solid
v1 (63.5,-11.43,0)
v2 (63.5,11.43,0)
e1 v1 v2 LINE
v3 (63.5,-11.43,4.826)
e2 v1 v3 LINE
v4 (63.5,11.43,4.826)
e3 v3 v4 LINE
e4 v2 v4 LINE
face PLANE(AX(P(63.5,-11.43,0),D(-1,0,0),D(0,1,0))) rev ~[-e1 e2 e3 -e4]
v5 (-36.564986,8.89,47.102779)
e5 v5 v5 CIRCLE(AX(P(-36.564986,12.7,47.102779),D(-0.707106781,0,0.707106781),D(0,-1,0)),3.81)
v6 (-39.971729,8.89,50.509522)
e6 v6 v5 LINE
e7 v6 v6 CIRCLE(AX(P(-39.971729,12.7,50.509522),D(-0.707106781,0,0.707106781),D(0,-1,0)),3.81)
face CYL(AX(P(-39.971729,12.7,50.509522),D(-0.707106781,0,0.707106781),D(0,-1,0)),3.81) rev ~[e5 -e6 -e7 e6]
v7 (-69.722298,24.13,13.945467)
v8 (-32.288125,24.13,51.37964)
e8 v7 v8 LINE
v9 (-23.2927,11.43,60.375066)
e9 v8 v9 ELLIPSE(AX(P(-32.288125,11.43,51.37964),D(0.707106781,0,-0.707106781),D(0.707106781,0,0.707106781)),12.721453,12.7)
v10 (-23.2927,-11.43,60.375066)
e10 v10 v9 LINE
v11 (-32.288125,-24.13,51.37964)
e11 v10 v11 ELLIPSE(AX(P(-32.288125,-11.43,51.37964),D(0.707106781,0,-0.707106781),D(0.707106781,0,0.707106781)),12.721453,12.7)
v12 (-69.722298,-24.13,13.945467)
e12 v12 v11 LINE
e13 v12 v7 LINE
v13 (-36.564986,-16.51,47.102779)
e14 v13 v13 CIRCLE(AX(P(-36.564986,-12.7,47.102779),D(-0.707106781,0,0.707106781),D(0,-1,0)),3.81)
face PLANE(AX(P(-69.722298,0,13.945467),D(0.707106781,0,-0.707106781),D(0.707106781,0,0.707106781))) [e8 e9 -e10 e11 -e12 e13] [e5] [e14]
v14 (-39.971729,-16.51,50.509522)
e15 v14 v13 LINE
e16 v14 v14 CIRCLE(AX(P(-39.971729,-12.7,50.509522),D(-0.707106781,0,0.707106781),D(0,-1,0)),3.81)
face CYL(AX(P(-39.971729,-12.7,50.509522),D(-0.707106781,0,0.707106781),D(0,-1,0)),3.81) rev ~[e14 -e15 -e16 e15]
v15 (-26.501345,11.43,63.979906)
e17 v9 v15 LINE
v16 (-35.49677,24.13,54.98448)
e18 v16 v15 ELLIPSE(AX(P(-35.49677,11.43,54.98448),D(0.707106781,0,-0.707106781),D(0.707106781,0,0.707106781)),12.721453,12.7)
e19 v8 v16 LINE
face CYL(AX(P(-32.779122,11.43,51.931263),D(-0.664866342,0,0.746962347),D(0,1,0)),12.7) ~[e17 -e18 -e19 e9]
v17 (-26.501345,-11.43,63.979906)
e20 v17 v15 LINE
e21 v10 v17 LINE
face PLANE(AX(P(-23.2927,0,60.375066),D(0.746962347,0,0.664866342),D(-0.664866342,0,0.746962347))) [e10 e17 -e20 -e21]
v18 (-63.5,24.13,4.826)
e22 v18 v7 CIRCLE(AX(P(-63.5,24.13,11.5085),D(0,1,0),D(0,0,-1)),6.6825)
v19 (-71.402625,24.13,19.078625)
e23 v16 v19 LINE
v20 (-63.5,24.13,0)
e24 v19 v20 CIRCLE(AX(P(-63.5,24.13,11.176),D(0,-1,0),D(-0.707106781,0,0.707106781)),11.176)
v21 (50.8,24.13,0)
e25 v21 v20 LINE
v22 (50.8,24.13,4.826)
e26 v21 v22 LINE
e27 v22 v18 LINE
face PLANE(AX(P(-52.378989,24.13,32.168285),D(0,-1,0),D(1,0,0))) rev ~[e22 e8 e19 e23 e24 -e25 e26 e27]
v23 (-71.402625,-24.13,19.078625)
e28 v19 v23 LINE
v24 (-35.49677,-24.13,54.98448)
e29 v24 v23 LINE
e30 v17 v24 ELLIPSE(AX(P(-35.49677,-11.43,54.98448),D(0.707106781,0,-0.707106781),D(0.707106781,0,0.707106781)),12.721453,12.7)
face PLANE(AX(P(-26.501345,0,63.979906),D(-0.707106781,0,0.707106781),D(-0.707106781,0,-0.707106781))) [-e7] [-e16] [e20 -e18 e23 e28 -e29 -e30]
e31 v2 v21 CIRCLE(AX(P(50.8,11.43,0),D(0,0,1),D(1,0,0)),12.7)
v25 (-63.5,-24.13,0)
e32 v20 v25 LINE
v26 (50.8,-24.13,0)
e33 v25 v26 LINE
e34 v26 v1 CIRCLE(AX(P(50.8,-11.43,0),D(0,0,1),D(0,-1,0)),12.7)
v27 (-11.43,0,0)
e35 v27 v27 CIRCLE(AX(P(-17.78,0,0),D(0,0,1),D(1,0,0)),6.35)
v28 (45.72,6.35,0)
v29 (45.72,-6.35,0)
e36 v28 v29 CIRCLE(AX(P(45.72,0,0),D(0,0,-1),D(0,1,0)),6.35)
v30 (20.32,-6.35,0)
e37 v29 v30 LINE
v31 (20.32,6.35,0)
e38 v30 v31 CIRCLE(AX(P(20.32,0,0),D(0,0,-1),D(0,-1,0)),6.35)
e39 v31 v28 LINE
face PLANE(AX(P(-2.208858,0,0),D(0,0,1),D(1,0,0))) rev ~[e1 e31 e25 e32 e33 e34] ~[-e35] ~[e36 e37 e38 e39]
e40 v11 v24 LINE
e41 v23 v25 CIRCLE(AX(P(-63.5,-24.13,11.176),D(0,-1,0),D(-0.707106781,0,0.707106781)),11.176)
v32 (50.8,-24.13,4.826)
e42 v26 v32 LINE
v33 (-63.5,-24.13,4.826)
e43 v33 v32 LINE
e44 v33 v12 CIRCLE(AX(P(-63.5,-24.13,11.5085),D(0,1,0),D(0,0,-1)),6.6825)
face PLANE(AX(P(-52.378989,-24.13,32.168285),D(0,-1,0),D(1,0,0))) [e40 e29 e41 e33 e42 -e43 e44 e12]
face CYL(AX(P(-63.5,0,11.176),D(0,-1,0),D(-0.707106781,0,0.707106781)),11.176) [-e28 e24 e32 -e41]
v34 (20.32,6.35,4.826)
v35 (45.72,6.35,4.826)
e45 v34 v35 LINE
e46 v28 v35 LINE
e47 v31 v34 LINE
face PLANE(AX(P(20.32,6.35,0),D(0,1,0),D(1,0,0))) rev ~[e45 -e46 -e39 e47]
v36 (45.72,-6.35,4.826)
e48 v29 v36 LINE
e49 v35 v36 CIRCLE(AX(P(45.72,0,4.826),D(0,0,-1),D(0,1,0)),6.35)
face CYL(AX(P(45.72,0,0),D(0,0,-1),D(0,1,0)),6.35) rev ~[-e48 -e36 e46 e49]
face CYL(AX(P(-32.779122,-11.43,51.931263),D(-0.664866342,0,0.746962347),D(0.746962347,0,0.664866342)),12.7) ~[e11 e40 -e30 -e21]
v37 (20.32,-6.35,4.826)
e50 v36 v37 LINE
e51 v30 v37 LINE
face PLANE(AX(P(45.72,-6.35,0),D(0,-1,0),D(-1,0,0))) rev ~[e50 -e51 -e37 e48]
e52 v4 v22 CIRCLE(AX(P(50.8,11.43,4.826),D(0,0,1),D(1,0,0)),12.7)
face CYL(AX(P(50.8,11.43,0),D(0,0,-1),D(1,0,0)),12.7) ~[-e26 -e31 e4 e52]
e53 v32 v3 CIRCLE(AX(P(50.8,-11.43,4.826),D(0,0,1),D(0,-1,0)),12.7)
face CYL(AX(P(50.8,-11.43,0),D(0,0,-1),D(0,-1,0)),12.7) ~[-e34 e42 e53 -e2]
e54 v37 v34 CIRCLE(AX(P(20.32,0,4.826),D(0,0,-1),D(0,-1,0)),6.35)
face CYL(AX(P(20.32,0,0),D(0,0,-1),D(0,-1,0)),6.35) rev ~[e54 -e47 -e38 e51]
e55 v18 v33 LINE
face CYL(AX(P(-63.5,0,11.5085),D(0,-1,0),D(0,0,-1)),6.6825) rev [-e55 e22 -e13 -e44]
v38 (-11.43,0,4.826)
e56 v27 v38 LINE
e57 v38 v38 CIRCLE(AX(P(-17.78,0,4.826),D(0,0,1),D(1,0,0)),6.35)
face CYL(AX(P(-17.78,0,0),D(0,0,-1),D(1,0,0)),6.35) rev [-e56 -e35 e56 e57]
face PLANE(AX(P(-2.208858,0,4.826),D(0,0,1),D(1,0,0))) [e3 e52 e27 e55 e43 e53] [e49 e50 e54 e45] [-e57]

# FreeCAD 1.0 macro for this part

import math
import FreeCAD as App
import Part
import Sketcher

V = App.Vector
Q = App.Units.Quantity


def edges_at(feature, points):
    """Names of the edges that pass closest to the given points."""
    edges = feature.Shape.Edges
    near = lambda p: min(range(len(edges)), key=lambda i: edges[i].distToShape(Part.Vertex(*p))[0])
    return sorted({f"Edge{near(p) + 1}" for p in points})

doc = App.newDocument("Part")
body = doc.addObject("PartDesign::Body", "Body")

sketch1 = doc.addObject("Sketcher::SketchObject", "Sketch")
body.addObject(sketch1)
sketch1.AttachmentSupport = (doc.XY_Plane, [""])
sketch1.MapMode = "FlatFace"
sketch1.addGeometry([
    Part.ArcOfCircle(Part.Circle(V(50.8, 11.43, 0), V(0, 0, 1), 12.7), math.radians(0), math.radians(90)),
    Part.LineSegment(V(50.8, 24.13, 0), V(-63.5, 24.13, 0)),
    Part.LineSegment(V(-63.5, 24.13, 0), V(-63.5, -24.13, 0)),
    Part.LineSegment(V(-63.5, -24.13, 0), V(50.8, -24.13, 0)),
    Part.ArcOfCircle(Part.Circle(V(50.8, -11.43, 0), V(0, 0, 1), 12.7), math.radians(-90), math.radians(0)),
    Part.LineSegment(V(63.5, -11.43, 0), V(63.5, 11.43, 0)),
    Part.Circle(V(-17.78, 0, 0), V(0, 0, 1), 6.35),
    Part.ArcOfCircle(Part.Circle(V(20.32, 0, 0), V(0, 0, 1), 6.35), math.radians(90), math.radians(270)),
    Part.LineSegment(V(20.32, 6.35, 0), V(45.72, 6.35, 0)),
    Part.ArcOfCircle(Part.Circle(V(45.72, 0, 0), V(0, 0, 1), 6.35), math.radians(-90), math.radians(90)),
    Part.LineSegment(V(45.72, -6.35, 0), V(20.32, -6.35, 0)),
], False)
sketch1.addConstraint([
    Sketcher.Constraint("Tangent", 0, 2, 1, 1),
    Sketcher.Constraint("Coincident", 1, 2, 2, 1),
    Sketcher.Constraint("Coincident", 2, 2, 3, 1),
    Sketcher.Constraint("Tangent", 3, 2, 4, 1),
    Sketcher.Constraint("Tangent", 4, 2, 5, 1),
    Sketcher.Constraint("Tangent", 5, 2, 0, 1),
    Sketcher.Constraint("Tangent", 7, 1, 8, 1),
    Sketcher.Constraint("Tangent", 8, 2, 9, 2),
    Sketcher.Constraint("Tangent", 9, 1, 10, 1),
    Sketcher.Constraint("Tangent", 10, 2, 7, 2),
    Sketcher.Constraint("Horizontal", 1),
    Sketcher.Constraint("Vertical", 2),
    Sketcher.Constraint("Horizontal", 3),
    Sketcher.Constraint("Vertical", 5),
    Sketcher.Constraint("Horizontal", 8),
    Sketcher.Constraint("Horizontal", 10),
    Sketcher.Constraint("Equal", 0, 4),
    Sketcher.Constraint("Equal", 6, 7),
    Sketcher.Constraint("PointOnObject", 6, 3, -1),
    Sketcher.Constraint("PointOnObject", 7, 3, -1),
    Sketcher.Constraint("Diameter", 6, Q("0.5 in")),
    Sketcher.Constraint("Radius", 0, Q("0.5 in")),
    Sketcher.Constraint("DistanceX", 8, 1, 8, 2, Q("1 in")),
    Sketcher.Constraint("DistanceX", 1, 2, 1, 1, Q("4.5 in")),
    Sketcher.Constraint("DistanceY", 2, 2, 2, 1, Q("1.9 in")),
    Sketcher.Constraint("DistanceX", -1, 1, 0, 3, Q("2 in")),
    Sketcher.Constraint("DistanceX", 6, 3, -1, 1, Q("0.7 in")),
    Sketcher.Constraint("DistanceX", -1, 1, 7, 3, Q("0.8 in")),
    Sketcher.Constraint("DistanceY", 7, 1, 0, 3, Q("0.2 in")),
])
pad1 = doc.addObject("PartDesign::Pad", "Pad")
body.addObject(pad1)
pad1.Profile = sketch1
pad1.Length = Q("0.19 in")

sketch2 = doc.addObject("Sketcher::SketchObject", "Sketch001")
body.addObject(sketch2)
sketch2.AttachmentSupport = (doc.XZ_Plane, [""])
sketch2.MapMode = "FlatFace"
sketch2.addGeometry([
    Part.LineSegment(V(-26.501345, 63.979906, 0), V(-71.402625, 19.078625, 0)),
    Part.ArcOfCircle(Part.Circle(V(-63.5, 11.176, 0), V(0, 0, 1), 11.176), math.radians(135), math.radians(270)),
    Part.LineSegment(V(-63.5, 0, 0), V(-63.5, 4.826, 0)),
    Part.ArcOfCircle(Part.Circle(V(-63.5, 11.5085, 0), V(0, 0, 1), 6.6825), math.radians(158.612171), math.radians(270)),
    Part.LineSegment(V(-69.722298, 13.945467, 0), V(-23.2927, 60.375066, 0)),
    Part.LineSegment(V(-23.2927, 60.375066, 0), V(-26.501345, 63.979906, 0)),
], False)
sketch2.addConstraint([
    Sketcher.Constraint("Tangent", 0, 2, 1, 1),
    Sketcher.Constraint("Coincident", 1, 2, 2, 1),
    Sketcher.Constraint("Coincident", 2, 2, 3, 2),
    Sketcher.Constraint("Coincident", 3, 1, 4, 1),
    Sketcher.Constraint("Coincident", 4, 2, 5, 1),
    Sketcher.Constraint("Coincident", 5, 2, 0, 1),
    Sketcher.Constraint("Vertical", 2),
    Sketcher.Constraint("PointOnObject", 1, 2, -1),
    Sketcher.Constraint("Parallel", 0, 4),
    Sketcher.Constraint("Vertical", 1, 3, 3, 3),
    Sketcher.Constraint("Vertical", 3, 3, 1, 2),
    Sketcher.Constraint("Radius", 1, Q("0.44 in")),
    Sketcher.Constraint("Angle", 0, Q("-135 deg")),
    Sketcher.Constraint("Distance", 0, Q("2.5 in")),
    Sketcher.Constraint("DistanceY", 2, 1, 2, 2, Q("0.19 in")),
    Sketcher.Constraint("DistanceX", 1, 3, -1, 1, Q("2.5 in")),
    Sketcher.Constraint("Distance", 5, Q("0.19 in")),
    Sketcher.Constraint("Radius", 3, 6.6825),
    Sketcher.Constraint("DistanceX", 3, 1, -1, 1, 69.722298),
])
pad2 = doc.addObject("PartDesign::Pad", "Pad001")
body.addObject(pad2)
pad2.Profile = sketch2
pad2.Length = Q("1.9 in")
pad2.Midplane = True
doc.recompute()

fillet = doc.addObject("PartDesign::Fillet", "Fillet")
body.addObject(fillet)
fillet.Base = (pad2, edges_at(pad2, [(-24.897, 24.13, 62.177)]))
fillet.Radius = Q("0.5 in")
doc.recompute()

fillet2 = doc.addObject("PartDesign::Fillet", "Fillet001")
body.addObject(fillet2)
fillet2.Base = (fillet, edges_at(fillet, [(-24.897, -24.13, 62.177)]))
fillet2.Radius = Q("0.5 in")

sketch3 = doc.addObject("Sketcher::SketchObject", "Sketch002")
body.addObject(sketch3)
sketch3.Placement = App.Placement(V(-45.240625, 0, 45.240625), App.Rotation(V(0, -1, 0), V(0.707106781, 0, 0.707106781), V(-0.707106781, 0, 0.707106781), "ZXY"))
sketch3.addGeometry([
    Part.Circle(V(-12.7, 7.451345, 0), V(0, 0, 1), 3.81),
    Part.Circle(V(12.7, 7.451345, 0), V(0, 0, 1), 3.81),
], False)
sketch3.addConstraint([
    Sketcher.Constraint("Equal", 0, 1),
    Sketcher.Constraint("Symmetric", 0, 3, 1, 3, -2),
    Sketcher.Constraint("Diameter", 0, Q("0.3 in")),
    Sketcher.Constraint("DistanceX", 0, 3, 1, 3, Q("1 in")),
    Sketcher.Constraint("DistanceY", -1, 1, 0, 3, 7.451345),
])
pocket1 = doc.addObject("PartDesign::Pocket", "Pocket")
body.addObject(pocket1)
pocket1.Profile = sketch3
pocket1.Length = Q("1 in")

doc.recompute()
